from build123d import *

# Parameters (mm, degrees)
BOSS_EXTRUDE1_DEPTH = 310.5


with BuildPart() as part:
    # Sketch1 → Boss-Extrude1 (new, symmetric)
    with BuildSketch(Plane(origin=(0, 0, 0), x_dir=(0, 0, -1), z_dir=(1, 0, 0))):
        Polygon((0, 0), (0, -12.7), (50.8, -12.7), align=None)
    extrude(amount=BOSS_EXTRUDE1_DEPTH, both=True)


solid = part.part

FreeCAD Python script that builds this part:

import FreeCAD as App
import Part
import Sketcher
Q = App.Units.Quantity


def add_polygon(sketch, points):
    """Adds a closed chain of lines whose ends are joined by coincident constraints."""
    first, n = sketch.GeometryCount, len(points)
    for a, b in zip(points, points[1:] + points[:1]):
        sketch.addGeometry(Part.LineSegment(App.Vector(*a, 0), App.Vector(*b, 0)), False)
    for i in range(n):
        sketch.addConstraint(Sketcher.Constraint("Coincident", first + i, 2, first + (i + 1) % n, 1))

doc = App.newDocument("Part")
body = doc.addObject("PartDesign::Body", "Body")

sketch1 = body.newObject("Sketcher::SketchObject", "Sketch")
sketch1.AttachmentSupport = (doc.getObject("YZ_Plane"), [""])
sketch1.MapMode = "FlatFace"
add_polygon(sketch1, [(0, 0), (-13, 0), (-13, -51)])
sketch1.addConstraint([
    Sketcher.Constraint("Horizontal", 0),
    Sketcher.Constraint("Vertical", 1),
    Sketcher.Constraint("Coincident", 2, 2, -1, 1),
    Sketcher.Constraint("DistanceY", 1, 2, 1, 1, Q("2 in")),
    Sketcher.Constraint("DistanceX", 0, 2, 0, 1, Q("0.5 in")),
])
pad1 = body.newObject("PartDesign::Pad", "Pad")
pad1.Profile = sketch1
pad1.Length = 621
pad1.Midplane = True

doc.recompute()
